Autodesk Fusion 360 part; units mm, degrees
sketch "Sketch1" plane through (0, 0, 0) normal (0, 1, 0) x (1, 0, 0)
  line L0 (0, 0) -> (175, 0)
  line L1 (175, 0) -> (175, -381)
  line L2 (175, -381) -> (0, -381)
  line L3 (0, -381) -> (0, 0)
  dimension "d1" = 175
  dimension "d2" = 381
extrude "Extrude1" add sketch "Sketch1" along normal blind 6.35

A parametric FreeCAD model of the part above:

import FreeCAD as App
import Part
import Sketcher
from FreeCAD import Vector
Q = App.Units.Quantity

doc = App.newDocument("Part")
body = doc.addObject("PartDesign::Body", "Body")

sketch1 = body.newObject("Sketcher::SketchObject", "Sketch")
sketch1.AttachmentSupport = (doc.getObject("XZ_Plane"), [""])
sketch1.MapMode = "FlatFace"
sketch1.addGeometry(Part.LineSegment(Vector(175, 0, 0), Vector(0, 0, 0)), False)
sketch1.addGeometry(Part.LineSegment(Vector(0, 0, 0), Vector(0, 381, 0)), False)
sketch1.addGeometry(Part.LineSegment(Vector(0, 381, 0), Vector(175, 381, 0)), False)
sketch1.addGeometry(Part.LineSegment(Vector(175, 381, 0), Vector(175, 0, 0)), False)
sketch1.addConstraint(Sketcher.Constraint("Coincident", 0, 2, 1, 1))
sketch1.addConstraint(Sketcher.Constraint("Coincident", 1, 2, 2, 1))
sketch1.addConstraint(Sketcher.Constraint("Coincident", 2, 2, 3, 1))
sketch1.addConstraint(Sketcher.Constraint("Coincident", 3, 2, 0, 1))
sketch1.addConstraint(Sketcher.Constraint("Horizontal", 0))
sketch1.addConstraint(Sketcher.Constraint("Vertical", 1))
sketch1.addConstraint(Sketcher.Constraint("Horizontal", 2))
sketch1.addConstraint(Sketcher.Constraint("Vertical", 3))
sketch1.addConstraint(Sketcher.Constraint("Coincident", 0, 2, -1, 1))
sketch1.addConstraint(Sketcher.Constraint("DistanceY", 1, 1, 1, 2, Q("15 in")))
sketch1.addConstraint(Sketcher.Constraint("DistanceX", 0, 2, 0, 1, 175.0))
pad1 = body.newObject("PartDesign::Pad", "Pad")
pad1.Profile = sketch1
pad1.Length = Q("0.25 in")
pad1.Reversed = True

doc.recompute()
